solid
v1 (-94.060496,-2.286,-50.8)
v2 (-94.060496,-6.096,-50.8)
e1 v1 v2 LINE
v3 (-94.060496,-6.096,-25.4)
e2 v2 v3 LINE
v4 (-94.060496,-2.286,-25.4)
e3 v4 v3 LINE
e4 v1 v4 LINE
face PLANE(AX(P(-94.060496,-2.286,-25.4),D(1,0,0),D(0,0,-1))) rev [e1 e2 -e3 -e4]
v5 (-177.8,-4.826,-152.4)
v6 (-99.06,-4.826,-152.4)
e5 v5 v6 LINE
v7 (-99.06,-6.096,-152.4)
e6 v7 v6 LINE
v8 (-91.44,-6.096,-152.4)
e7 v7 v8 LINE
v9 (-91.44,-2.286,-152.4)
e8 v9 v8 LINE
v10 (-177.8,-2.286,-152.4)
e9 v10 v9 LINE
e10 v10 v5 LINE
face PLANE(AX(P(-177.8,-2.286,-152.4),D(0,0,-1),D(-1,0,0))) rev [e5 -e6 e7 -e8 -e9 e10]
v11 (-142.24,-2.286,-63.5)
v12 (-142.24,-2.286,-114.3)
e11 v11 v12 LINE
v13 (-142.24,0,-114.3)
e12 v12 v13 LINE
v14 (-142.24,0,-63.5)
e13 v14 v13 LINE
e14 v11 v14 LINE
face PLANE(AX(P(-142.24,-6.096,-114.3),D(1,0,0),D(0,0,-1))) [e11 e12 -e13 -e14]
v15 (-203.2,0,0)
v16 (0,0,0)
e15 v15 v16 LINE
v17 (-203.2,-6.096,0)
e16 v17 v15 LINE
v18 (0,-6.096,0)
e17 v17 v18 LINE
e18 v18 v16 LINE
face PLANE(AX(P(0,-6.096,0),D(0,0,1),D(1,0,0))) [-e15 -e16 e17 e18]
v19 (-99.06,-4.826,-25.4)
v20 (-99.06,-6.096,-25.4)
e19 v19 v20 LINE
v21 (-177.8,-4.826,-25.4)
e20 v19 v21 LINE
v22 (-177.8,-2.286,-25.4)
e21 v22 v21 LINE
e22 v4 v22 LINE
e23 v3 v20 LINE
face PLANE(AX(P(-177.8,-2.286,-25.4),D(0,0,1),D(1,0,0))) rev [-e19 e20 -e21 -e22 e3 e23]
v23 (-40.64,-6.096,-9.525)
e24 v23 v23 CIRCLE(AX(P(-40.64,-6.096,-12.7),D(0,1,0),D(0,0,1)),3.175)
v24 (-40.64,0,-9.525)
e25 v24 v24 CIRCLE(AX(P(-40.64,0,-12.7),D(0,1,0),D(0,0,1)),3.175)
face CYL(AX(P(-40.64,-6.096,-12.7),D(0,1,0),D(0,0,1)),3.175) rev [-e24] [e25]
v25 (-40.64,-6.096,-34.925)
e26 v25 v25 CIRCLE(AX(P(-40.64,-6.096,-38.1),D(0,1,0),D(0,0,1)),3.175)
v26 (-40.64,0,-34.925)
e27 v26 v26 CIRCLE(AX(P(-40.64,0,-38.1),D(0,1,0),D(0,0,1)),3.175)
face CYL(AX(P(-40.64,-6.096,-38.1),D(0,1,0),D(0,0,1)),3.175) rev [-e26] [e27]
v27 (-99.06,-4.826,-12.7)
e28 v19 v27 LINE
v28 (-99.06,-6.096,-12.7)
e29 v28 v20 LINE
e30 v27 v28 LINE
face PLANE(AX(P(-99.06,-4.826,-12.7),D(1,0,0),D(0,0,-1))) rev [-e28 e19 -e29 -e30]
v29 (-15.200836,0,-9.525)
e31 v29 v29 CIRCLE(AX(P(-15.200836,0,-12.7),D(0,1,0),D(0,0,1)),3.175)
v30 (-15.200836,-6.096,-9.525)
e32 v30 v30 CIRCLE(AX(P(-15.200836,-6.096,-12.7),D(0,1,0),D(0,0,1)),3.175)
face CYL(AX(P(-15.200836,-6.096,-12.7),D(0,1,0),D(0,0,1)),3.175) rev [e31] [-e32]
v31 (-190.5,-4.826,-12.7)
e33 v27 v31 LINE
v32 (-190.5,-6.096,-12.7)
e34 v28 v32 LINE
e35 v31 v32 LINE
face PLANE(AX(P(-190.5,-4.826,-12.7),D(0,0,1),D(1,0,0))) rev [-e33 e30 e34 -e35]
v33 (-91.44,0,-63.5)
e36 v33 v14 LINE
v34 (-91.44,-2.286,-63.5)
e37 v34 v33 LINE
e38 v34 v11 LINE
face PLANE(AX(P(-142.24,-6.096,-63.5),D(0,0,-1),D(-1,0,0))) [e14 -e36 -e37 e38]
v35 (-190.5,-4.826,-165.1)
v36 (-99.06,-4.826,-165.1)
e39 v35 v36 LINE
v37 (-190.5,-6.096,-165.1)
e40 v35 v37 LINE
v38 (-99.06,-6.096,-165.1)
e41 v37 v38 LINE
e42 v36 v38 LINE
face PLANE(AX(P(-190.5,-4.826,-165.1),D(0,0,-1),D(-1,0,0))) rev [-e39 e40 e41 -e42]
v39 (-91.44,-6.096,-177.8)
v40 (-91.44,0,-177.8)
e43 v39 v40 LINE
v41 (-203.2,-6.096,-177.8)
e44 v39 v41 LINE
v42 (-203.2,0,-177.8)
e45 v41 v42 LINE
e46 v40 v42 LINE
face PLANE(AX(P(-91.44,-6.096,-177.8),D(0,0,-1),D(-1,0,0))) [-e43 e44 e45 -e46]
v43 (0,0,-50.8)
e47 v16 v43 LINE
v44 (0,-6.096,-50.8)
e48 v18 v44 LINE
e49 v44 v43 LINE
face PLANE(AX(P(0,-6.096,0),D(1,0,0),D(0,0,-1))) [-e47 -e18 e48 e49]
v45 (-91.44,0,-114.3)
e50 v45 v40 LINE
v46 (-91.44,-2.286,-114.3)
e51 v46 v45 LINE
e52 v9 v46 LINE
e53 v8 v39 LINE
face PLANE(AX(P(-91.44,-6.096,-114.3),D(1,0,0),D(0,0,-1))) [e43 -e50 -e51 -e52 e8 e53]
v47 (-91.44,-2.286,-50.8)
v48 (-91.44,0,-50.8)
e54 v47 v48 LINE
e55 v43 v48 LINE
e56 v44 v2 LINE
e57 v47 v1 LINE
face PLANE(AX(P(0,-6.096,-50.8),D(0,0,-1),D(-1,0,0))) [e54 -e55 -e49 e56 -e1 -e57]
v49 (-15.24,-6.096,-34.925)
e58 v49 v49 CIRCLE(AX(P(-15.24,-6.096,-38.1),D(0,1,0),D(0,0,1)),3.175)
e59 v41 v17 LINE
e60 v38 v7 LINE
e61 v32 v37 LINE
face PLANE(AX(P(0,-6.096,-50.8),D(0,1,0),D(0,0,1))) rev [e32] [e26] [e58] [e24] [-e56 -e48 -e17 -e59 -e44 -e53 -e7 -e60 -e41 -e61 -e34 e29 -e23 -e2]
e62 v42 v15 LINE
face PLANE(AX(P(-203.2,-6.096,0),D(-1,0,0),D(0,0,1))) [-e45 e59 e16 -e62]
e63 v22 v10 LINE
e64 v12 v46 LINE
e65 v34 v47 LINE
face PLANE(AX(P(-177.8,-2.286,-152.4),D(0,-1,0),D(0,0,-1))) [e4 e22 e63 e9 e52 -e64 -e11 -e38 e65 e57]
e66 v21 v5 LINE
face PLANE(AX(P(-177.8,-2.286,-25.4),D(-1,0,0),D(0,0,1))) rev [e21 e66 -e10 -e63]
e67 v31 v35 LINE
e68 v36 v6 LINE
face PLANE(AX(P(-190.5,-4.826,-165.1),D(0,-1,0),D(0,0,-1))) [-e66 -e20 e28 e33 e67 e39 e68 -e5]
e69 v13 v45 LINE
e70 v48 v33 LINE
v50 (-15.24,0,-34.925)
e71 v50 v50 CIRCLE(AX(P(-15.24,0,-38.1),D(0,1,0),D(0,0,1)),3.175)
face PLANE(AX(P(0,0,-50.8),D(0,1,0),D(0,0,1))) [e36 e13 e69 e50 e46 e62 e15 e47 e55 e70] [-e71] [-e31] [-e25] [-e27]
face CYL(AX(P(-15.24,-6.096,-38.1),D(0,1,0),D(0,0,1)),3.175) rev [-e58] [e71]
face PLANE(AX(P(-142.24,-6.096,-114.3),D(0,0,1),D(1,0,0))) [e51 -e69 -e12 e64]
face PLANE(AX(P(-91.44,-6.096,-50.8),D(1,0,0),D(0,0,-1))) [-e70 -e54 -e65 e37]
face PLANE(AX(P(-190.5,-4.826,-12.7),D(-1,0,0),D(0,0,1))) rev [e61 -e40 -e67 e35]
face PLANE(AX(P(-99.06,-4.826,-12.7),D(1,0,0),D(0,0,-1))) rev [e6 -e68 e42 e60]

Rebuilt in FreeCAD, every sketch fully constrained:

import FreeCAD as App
import Part
import Sketcher
Q = App.Units.Quantity

doc = App.newDocument("Part")
params = doc.addObject("Spreadsheet::Sheet", "Params")
for row, (alias, value) in enumerate([
    ("sketch1_diameter", "0.25 in"),
    ("sketch1_width", "2 in"),
    ("sketch1_width2", "8 in"),
    ("sketch1_height", "7 in"),
    ("sketch1_width3", "3.6 in"),
    ("pad1_length", "0.24 in"),
    ("sketch2_height", "6 in"),
    ("sketch2_width", "3.6 in"),
    ("pocket1_length", "0.05 in"),
    ("sketch3_height", "1 in"),
    ("sketch3_height2", "5 in"),
    ("sketch3_width", "3.4 in"),
    ("pocket2_length", "0.15 in"),
], start=1):
    params.set(f"A{row}", alias)
    params.set(f"B{row}", "=" + value)
    params.setAlias(f"B{row}", alias)

body = doc.addObject("PartDesign::Body", "Body")

# Sketch on XZ plane
sketch1 = body.newObject("Sketcher::SketchObject", "Sketch")
sketch1.AttachmentSupport = (doc.getObject("XZ_Plane"), [""])
sketch1.MapMode = "FlatFace"
sketch1.addGeometry(Part.LineSegment(App.Vector(0, -50.8, 0), App.Vector(-91.4, -50.8, 0)), False)
sketch1.addGeometry(Part.LineSegment(App.Vector(-91.4, -50.8, 0), App.Vector(-91.4, -63.5, 0)), False)
sketch1.addGeometry(Part.LineSegment(App.Vector(-91.4, -63.5, 0), App.Vector(-142.2, -63.5, 0)), False)
sketch1.addGeometry(Part.LineSegment(App.Vector(-142.2, -63.5, 0), App.Vector(-142.2, -114.3, 0)), False)
sketch1.addGeometry(Part.LineSegment(App.Vector(-142.2, -114.3, 0), App.Vector(-91.4, -114.3, 0)), False)
sketch1.addGeometry(Part.LineSegment(App.Vector(-91.4, -114.3, 0), App.Vector(-91.4, -177.8, 0)), False)
sketch1.addGeometry(Part.LineSegment(App.Vector(-91.4, -177.8, 0), App.Vector(-203.2, -177.8, 0)), False)
sketch1.addGeometry(Part.LineSegment(App.Vector(-203.2, -177.8, 0), App.Vector(-203.2, 0, 0)), False)
sketch1.addGeometry(Part.LineSegment(App.Vector(-203.2, 0, 0), App.Vector(0, 0, 0)), False)
sketch1.addGeometry(Part.LineSegment(App.Vector(0, 0, 0), App.Vector(0, -50.8, 0)), False)
sketch1.addGeometry(Part.Circle(App.Vector(-40.6, -12.7, 0), App.Vector(0, 0, 1), 3.2), False)
sketch1.addGeometry(Part.Circle(App.Vector(-15.2, -12.7, 0), App.Vector(0, 0, 1), 3.2), False)
sketch1.addGeometry(Part.Circle(App.Vector(-40.6, -38.1, 0), App.Vector(0, 0, 1), 3.2), False)
sketch1.addGeometry(Part.Circle(App.Vector(-15.2, -38.1, 0), App.Vector(0, 0, 1), 3.2), False)
sketch1.addConstraint(Sketcher.Constraint("Coincident", 0, 2, 1, 1))
sketch1.addConstraint(Sketcher.Constraint("Coincident", 1, 2, 2, 1))
sketch1.addConstraint(Sketcher.Constraint("Coincident", 2, 2, 3, 1))
sketch1.addConstraint(Sketcher.Constraint("Coincident", 3, 2, 4, 1))
sketch1.addConstraint(Sketcher.Constraint("Coincident", 4, 2, 5, 1))
sketch1.addConstraint(Sketcher.Constraint("Coincident", 5, 2, 6, 1))
sketch1.addConstraint(Sketcher.Constraint("Coincident", 6, 2, 7, 1))
sketch1.addConstraint(Sketcher.Constraint("Coincident", 7, 2, 8, 1))
sketch1.addConstraint(Sketcher.Constraint("Coincident", 8, 2, 9, 1))
sketch1.addConstraint(Sketcher.Constraint("Coincident", 9, 2, 0, 1))
sketch1.addConstraint(Sketcher.Constraint("Horizontal", 0))
sketch1.addConstraint(Sketcher.Constraint("Vertical", 1))
sketch1.addConstraint(Sketcher.Constraint("Horizontal", 2))
sketch1.addConstraint(Sketcher.Constraint("Vertical", 3))
sketch1.addConstraint(Sketcher.Constraint("Horizontal", 4))
sketch1.addConstraint(Sketcher.Constraint("Vertical", 5))
sketch1.addConstraint(Sketcher.Constraint("Horizontal", 6))
sketch1.addConstraint(Sketcher.Constraint("Vertical", 7))
sketch1.addConstraint(Sketcher.Constraint("Horizontal", 8))
sketch1.addConstraint(Sketcher.Constraint("Vertical", 9))
sketch1.addConstraint(Sketcher.Constraint("Coincident", 8, 2, -1, 1))
sketch1.addConstraint(Sketcher.Constraint("Equal", 10, 11))
sketch1.addConstraint(Sketcher.Constraint("Equal", 11, 12))
sketch1.addConstraint(Sketcher.Constraint("Equal", 12, 13))
sketch1.addConstraint(Sketcher.Constraint("Horizontal", 10, 3, 11, 3))
sketch1.addConstraint(Sketcher.Constraint("Horizontal", 12, 3, 13, 3))
sketch1.addConstraint(Sketcher.Constraint("Vertical", 10, 3, 12, 3))
sketch1.addConstraint(Sketcher.Constraint("Vertical", 1, 2, 4, 2))
sketch1.addConstraint(Sketcher.Constraint("Equal", 4, 3))
sketch1.addConstraint(Sketcher.Constraint("Equal", 3, 9))
sketch1.addConstraint(Sketcher.Constraint("Diameter", 10, Q("0.25 in")))
sketch1.addConstraint(Sketcher.Constraint("DistanceX", 2, 2, 2, 1, Q("2 in")))
sketch1.addConstraint(Sketcher.Constraint("DistanceX", 8, 1, 8, 2, Q("8 in")))
sketch1.addConstraint(Sketcher.Constraint("DistanceY", 7, 1, 7, 2, Q("7 in")))
sketch1.addConstraint(Sketcher.Constraint("DistanceX", 0, 2, 0, 1, Q("3.6 in")))
sketch1.addConstraint(Sketcher.Constraint("DistanceY", 1, 2, 1, 1, Q("0.5 in")))
sketch1.addConstraint(Sketcher.Constraint("DistanceY", 12, 3, 10, 3, Q("1 in")))
sketch1.addConstraint(Sketcher.Constraint("DistanceX", 12, 3, 13, 3, Q("1 in")))
sketch1.addConstraint(Sketcher.Constraint("DistanceX", 0, 2, 12, 3, Q("2 in")))
sketch1.addConstraint(Sketcher.Constraint("DistanceY", 1, 2, 12, 3, Q("1 in")))
sketch1.addConstraint(Sketcher.Constraint("DistanceX", 11, 3, -1, 1, 15.200836))
sketch1.setExpression("Constraints[30]", "Params.sketch1_diameter")
sketch1.setExpression("Constraints[31]", "Params.sketch1_width")
sketch1.setExpression("Constraints[32]", "Params.sketch1_width2")
sketch1.setExpression("Constraints[33]", "Params.sketch1_height")
sketch1.setExpression("Constraints[34]", "Params.sketch1_width3")
pad1 = body.newObject("PartDesign::Pad", "Pad")
pad1.Profile = sketch1
pad1.setExpression("Length", "Params.pad1_length")

# Sketch on XZ plane
sketch2 = body.newObject("Sketcher::SketchObject", "Sketch001")
sketch2.AttachmentSupport = (doc.getObject("XZ_Plane"), [""])
sketch2.MapMode = "FlatFace"
sketch2.AttachmentOffset = App.Placement(App.Vector(0, 0, 0.24 * 25.4), App.Rotation())
sketch2.addGeometry(Part.LineSegment(App.Vector(-190, -13, 0), App.Vector(-190, -165, 0)), False)
sketch2.addGeometry(Part.LineSegment(App.Vector(-190, -165, 0), App.Vector(-99, -165, 0)), False)
sketch2.addGeometry(Part.LineSegment(App.Vector(-99, -165, 0), App.Vector(-99, -13, 0)), False)
sketch2.addGeometry(Part.LineSegment(App.Vector(-99, -13, 0), App.Vector(-190, -13, 0)), False)
sketch2.addConstraint(Sketcher.Constraint("Coincident", 0, 2, 1, 1))
sketch2.addConstraint(Sketcher.Constraint("Coincident", 1, 2, 2, 1))
sketch2.addConstraint(Sketcher.Constraint("Coincident", 2, 2, 3, 1))
sketch2.addConstraint(Sketcher.Constraint("Coincident", 3, 2, 0, 1))
sketch2.addConstraint(Sketcher.Constraint("Vertical", 0))
sketch2.addConstraint(Sketcher.Constraint("Horizontal", 1))
sketch2.addConstraint(Sketcher.Constraint("Vertical", 2))
sketch2.addConstraint(Sketcher.Constraint("Horizontal", 3))
sketch2.addConstraint(Sketcher.Constraint("DistanceY", 0, 2, 0, 1, Q("6 in")))
sketch2.addConstraint(Sketcher.Constraint("DistanceX", 1, 1, 1, 2, Q("3.6 in")))
sketch2.addConstraint(Sketcher.Constraint("DistanceX", 0, 2, -1, 1, Q("7.5 in")))
sketch2.addConstraint(Sketcher.Constraint("DistanceY", 0, 2, -1, 1, Q("6.5 in")))
sketch2.setExpression("Constraints[8]", "Params.sketch2_height")
sketch2.setExpression("Constraints[9]", "Params.sketch2_width")
pocket1 = body.newObject("PartDesign::Pocket", "Pocket")
pocket1.Profile = sketch2
pocket1.setExpression("Length", "Params.pocket1_length")

# Sketch on XZ plane
sketch3 = body.newObject("Sketcher::SketchObject", "Sketch002")
sketch3.AttachmentSupport = (doc.getObject("XZ_Plane"), [""])
sketch3.MapMode = "FlatFace"
sketch3.AttachmentOffset = App.Placement(App.Vector(0, 0, 0.24 * 25.4), App.Rotation())
sketch3.addGeometry(Part.LineSegment(App.Vector(-91.4, -50.8, 0), App.Vector(-94.1, -50.8, 0)), False)
sketch3.addGeometry(Part.LineSegment(App.Vector(-94.1, -50.8, 0), App.Vector(-94.1, -25.4, 0)), False)
sketch3.addGeometry(Part.LineSegment(App.Vector(-94.1, -25.4, 0), App.Vector(-177.8, -25.4, 0)), False)
sketch3.addGeometry(Part.LineSegment(App.Vector(-177.8, -25.4, 0), App.Vector(-177.8, -152.4, 0)), False)
sketch3.addGeometry(Part.LineSegment(App.Vector(-177.8, -152.4, 0), App.Vector(-91.4, -152.4, 0)), False)
sketch3.addGeometry(Part.LineSegment(App.Vector(-91.4, -152.4, 0), App.Vector(-91.4, -50.8, 0)), False)
sketch3.addConstraint(Sketcher.Constraint("Coincident", 0, 2, 1, 1))
sketch3.addConstraint(Sketcher.Constraint("Coincident", 1, 2, 2, 1))
sketch3.addConstraint(Sketcher.Constraint("Coincident", 2, 2, 3, 1))
sketch3.addConstraint(Sketcher.Constraint("Coincident", 3, 2, 4, 1))
sketch3.addConstraint(Sketcher.Constraint("Coincident", 4, 2, 5, 1))
sketch3.addConstraint(Sketcher.Constraint("Coincident", 5, 2, 0, 1))
sketch3.addConstraint(Sketcher.Constraint("Horizontal", 0))
sketch3.addConstraint(Sketcher.Constraint("Vertical", 1))
sketch3.addConstraint(Sketcher.Constraint("Horizontal", 2))
sketch3.addConstraint(Sketcher.Constraint("Vertical", 3))
sketch3.addConstraint(Sketcher.Constraint("Horizontal", 4))
sketch3.addConstraint(Sketcher.Constraint("Vertical", 5))
sketch3.addConstraint(Sketcher.Constraint("DistanceY", 1, 1, 1, 2, Q("1 in")))
sketch3.addConstraint(Sketcher.Constraint("DistanceY", 3, 2, 3, 1, Q("5 in")))
sketch3.addConstraint(Sketcher.Constraint("DistanceX", 4, 1, 4, 2, Q("3.4 in")))
sketch3.addConstraint(Sketcher.Constraint("DistanceY", 0, 2, -1, 1, Q("2 in")))
sketch3.addConstraint(Sketcher.Constraint("DistanceX", 2, 2, -1, 1, Q("7 in")))
sketch3.addConstraint(Sketcher.Constraint("DistanceX", 0, 2, 0, 1, 2.620496))
sketch3.setExpression("Constraints[12]", "Params.sketch3_height")
sketch3.setExpression("Constraints[13]", "Params.sketch3_height2")
sketch3.setExpression("Constraints[14]", "Params.sketch3_width")
pocket2 = body.newObject("PartDesign::Pocket", "Pocket001")
pocket2.Profile = sketch3
pocket2.setExpression("Length", "Params.pocket2_length")

doc.recompute()
